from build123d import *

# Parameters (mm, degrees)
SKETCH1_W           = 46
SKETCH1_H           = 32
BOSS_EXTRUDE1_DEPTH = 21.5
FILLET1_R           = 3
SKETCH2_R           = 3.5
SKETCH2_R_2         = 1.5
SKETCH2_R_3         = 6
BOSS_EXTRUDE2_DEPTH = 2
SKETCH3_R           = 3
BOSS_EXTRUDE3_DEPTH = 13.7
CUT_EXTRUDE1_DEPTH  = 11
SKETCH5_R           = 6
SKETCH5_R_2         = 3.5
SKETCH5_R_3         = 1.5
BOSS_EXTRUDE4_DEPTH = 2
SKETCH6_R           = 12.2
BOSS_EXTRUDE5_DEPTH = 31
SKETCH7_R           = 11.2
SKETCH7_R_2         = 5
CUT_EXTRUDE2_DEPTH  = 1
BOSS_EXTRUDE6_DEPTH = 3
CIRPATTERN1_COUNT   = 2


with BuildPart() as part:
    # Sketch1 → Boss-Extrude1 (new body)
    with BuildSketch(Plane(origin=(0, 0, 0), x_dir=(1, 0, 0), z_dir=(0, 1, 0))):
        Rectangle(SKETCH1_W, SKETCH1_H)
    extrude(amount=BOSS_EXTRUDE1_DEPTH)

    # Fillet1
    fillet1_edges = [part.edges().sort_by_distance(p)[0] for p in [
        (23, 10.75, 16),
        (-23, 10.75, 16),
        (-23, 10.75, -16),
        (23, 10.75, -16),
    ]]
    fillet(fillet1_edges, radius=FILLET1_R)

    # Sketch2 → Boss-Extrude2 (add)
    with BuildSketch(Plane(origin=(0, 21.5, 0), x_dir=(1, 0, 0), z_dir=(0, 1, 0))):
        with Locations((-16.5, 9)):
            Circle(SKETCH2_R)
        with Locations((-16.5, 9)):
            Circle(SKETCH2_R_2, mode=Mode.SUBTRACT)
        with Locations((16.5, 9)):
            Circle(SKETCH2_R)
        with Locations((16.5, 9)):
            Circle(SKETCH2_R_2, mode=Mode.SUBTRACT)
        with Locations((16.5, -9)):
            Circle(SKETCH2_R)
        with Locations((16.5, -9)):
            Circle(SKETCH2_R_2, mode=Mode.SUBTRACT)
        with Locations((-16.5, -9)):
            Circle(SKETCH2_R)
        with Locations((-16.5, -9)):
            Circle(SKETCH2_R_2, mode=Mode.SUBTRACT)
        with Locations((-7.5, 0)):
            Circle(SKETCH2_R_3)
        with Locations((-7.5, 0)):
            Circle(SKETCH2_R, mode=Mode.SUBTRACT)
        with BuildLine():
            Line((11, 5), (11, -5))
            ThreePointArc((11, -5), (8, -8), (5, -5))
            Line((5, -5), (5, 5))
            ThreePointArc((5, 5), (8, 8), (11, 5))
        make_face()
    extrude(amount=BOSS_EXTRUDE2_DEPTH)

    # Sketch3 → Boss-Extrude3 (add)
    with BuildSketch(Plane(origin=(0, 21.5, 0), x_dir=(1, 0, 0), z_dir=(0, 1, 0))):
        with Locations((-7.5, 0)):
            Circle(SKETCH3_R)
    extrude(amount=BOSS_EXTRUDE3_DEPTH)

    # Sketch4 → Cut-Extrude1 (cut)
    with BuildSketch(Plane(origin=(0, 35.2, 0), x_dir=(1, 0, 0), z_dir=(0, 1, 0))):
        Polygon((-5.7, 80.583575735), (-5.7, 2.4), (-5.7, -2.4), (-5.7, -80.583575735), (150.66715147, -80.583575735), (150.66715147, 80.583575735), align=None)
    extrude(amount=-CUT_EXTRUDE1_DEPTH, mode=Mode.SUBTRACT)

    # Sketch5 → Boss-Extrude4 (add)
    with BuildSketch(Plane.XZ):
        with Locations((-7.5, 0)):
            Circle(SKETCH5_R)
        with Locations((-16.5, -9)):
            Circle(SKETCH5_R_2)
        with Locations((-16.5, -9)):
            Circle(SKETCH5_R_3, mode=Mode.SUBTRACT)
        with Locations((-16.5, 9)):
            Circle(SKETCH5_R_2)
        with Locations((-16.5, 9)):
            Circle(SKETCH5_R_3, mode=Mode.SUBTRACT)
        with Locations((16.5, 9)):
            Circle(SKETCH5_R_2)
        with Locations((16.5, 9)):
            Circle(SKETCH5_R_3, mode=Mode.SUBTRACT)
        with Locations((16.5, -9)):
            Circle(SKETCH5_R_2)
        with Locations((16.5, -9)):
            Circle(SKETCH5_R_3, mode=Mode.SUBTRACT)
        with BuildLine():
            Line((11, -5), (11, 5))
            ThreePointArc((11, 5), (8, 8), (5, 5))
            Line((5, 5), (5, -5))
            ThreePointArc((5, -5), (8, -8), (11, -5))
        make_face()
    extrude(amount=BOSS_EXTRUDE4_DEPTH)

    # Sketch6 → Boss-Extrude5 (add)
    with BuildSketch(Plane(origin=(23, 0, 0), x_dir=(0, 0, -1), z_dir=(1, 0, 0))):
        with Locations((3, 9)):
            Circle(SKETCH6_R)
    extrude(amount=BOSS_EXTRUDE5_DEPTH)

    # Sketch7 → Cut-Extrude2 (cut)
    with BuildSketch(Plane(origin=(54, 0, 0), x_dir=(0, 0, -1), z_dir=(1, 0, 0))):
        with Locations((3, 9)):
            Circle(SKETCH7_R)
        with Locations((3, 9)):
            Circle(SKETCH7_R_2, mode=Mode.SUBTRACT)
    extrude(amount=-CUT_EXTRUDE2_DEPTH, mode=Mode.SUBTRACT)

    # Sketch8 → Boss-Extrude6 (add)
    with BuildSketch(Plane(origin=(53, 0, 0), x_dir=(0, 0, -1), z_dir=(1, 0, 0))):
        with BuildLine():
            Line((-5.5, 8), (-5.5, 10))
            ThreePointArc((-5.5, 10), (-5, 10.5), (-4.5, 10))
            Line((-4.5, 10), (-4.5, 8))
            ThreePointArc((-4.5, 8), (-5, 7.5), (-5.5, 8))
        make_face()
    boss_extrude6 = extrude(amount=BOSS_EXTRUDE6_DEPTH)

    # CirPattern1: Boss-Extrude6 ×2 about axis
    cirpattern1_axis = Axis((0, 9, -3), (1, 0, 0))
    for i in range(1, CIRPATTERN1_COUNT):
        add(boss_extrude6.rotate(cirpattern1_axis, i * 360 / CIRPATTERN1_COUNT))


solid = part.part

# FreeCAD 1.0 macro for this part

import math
import FreeCAD as App
import Part
import Sketcher

V = App.Vector
Q = App.Units.Quantity


def edges_at(feature, points):
    """Names of the edges that pass closest to the given points."""
    edges = feature.Shape.Edges
    near = lambda p: min(range(len(edges)), key=lambda i: edges[i].distToShape(Part.Vertex(*p))[0])
    return sorted({f"Edge{near(p) + 1}" for p in points})

doc = App.newDocument("Part")
params = doc.addObject("Spreadsheet::Sheet", "Params")
for row, (alias, value) in enumerate([
    ("sketch1_width", "46 mm"),
    ("sketch1_height", "32 mm"),
    ("pad1_length", "21.5 mm"),
    ("fillet_radius", "3 mm"),
    ("sketch2_diameter", "7 mm"),
    ("sketch2_diameter2", "3 mm"),
    ("sketch2_diameter3", "12 mm"),
    ("sketch2_radius", "3 mm"),
    ("sketch2_height", "10 mm"),
    ("pad2_length", "2 mm"),
    ("sketch3_diameter", "6 mm"),
    ("pad3_length", "13.7 mm"),
    ("pocket1_length", "11 mm"),
    ("sketch5_diameter", "12 mm"),
    ("sketch5_diameter2", "7 mm"),
    ("sketch5_diameter3", "3 mm"),
    ("sketch5_radius", "3 mm"),
    ("sketch5_height", "10 mm"),
    ("pad4_length", "2 mm"),
    ("sketch6_diameter", "24.4 mm"),
    ("pad5_length", "31 mm"),
    ("sketch7_diameter", "10 mm"),
    ("sketch7_diameter2", "22.4 mm"),
    ("pocket2_length", "1 mm"),
    ("sketch8_radius", "0.5 mm"),
    ("sketch8_width", "2 mm"),
    ("pad6_length", "3 mm"),
], start=1):
    params.set(f"A{row}", alias)
    params.set(f"B{row}", "=" + value)
    params.setAlias(f"B{row}", alias)

body = doc.addObject("PartDesign::Body", "Body")

# Sketch on XZ plane
sketch1 = doc.addObject("Sketcher::SketchObject", "Sketch")
body.addObject(sketch1)
sketch1.AttachmentSupport = (doc.XZ_Plane, [""])
sketch1.MapMode = "FlatFace"
sketch1.addGeometry([
    Part.LineSegment(V(-23, -16, 0), V(-23, 16, 0)),
    Part.LineSegment(V(-23, 16, 0), V(23, 16, 0)),
    Part.LineSegment(V(23, 16, 0), V(23, -16, 0)),
    Part.LineSegment(V(23, -16, 0), V(-23, -16, 0)),
], False)
sketch1.addConstraint([
    Sketcher.Constraint("Coincident", 0, 2, 1, 1),
    Sketcher.Constraint("Coincident", 1, 2, 2, 1),
    Sketcher.Constraint("Coincident", 2, 2, 3, 1),
    Sketcher.Constraint("Coincident", 3, 2, 0, 1),
    Sketcher.Constraint("Vertical", 0),
    Sketcher.Constraint("Horizontal", 1),
    Sketcher.Constraint("Vertical", 2),
    Sketcher.Constraint("Horizontal", 3),
    Sketcher.Constraint("Symmetric", 0, 2, 2, 2, -1, 1),
    Sketcher.Constraint("DistanceX", 1, 1, 1, 2, Q("46 mm")),
    Sketcher.Constraint("DistanceY", 0, 1, 0, 2, Q("32 mm")),
])
sketch1.setExpression("Constraints[9]", "Params.sketch1_width")
sketch1.setExpression("Constraints[10]", "Params.sketch1_height")
pad1 = doc.addObject("PartDesign::Pad", "Pad")
body.addObject(pad1)
pad1.Profile = sketch1
pad1.setExpression("Length", "Params.pad1_length")
pad1.Reversed = True
doc.recompute()

fillet = doc.addObject("PartDesign::Fillet", "Fillet")
body.addObject(fillet)
fillet.Base = (pad1, edges_at(pad1, [
    (23, 10.75, 16),
    (-23, 10.75, 16),
    (-23, 10.75, -16),
    (23, 10.75, -16),
]))
fillet.setExpression("Radius", "Params.fillet_radius")

# Sketch on XZ plane
sketch2 = doc.addObject("Sketcher::SketchObject", "Sketch001")
body.addObject(sketch2)
sketch2.AttachmentSupport = (doc.XZ_Plane, [""])
sketch2.MapMode = "FlatFace"
sketch2.AttachmentOffset = App.Placement(V(0, 0, -21.5), App.Rotation())
sketch2.addGeometry([
    Part.Circle(V(-16.5, -9, 0), V(0, 0, 1), 3.5),  # 0
    Part.Circle(V(-16.5, -9, 0), V(0, 0, 1), 1.5),  # 1
    Part.Circle(V(16.5, -9, 0), V(0, 0, 1), 3.5),  # 2
    Part.Circle(V(16.5, -9, 0), V(0, 0, 1), 1.5),  # 3
    Part.Circle(V(16.5, 9, 0), V(0, 0, 1), 3.5),  # 4
    Part.Circle(V(16.5, 9, 0), V(0, 0, 1), 1.5),  # 5
    Part.Circle(V(-16.5, 9, 0), V(0, 0, 1), 3.5),  # 6
    Part.Circle(V(-16.5, 9, 0), V(0, 0, 1), 1.5),  # 7
    Part.Circle(V(-7.5, 0, 0), V(0, 0, 1), 6),  # 8
    Part.Circle(V(-7.5, 0, 0), V(0, 0, 1), 3.5),  # 9
    Part.LineSegment(V(11, 5, 0), V(11, -5, 0)),  # 10
    Part.ArcOfCircle(Part.Circle(V(8, -5, 0), V(0, 0, 1), 3), math.radians(180), math.radians(360)),  # 11
    Part.LineSegment(V(5, -5, 0), V(5, 5, 0)),  # 12
    Part.ArcOfCircle(Part.Circle(V(8, 5, 0), V(0, 0, 1), 3), math.radians(0), math.radians(180)),  # 13
], False)
sketch2.addConstraint([
    Sketcher.Constraint("Tangent", 10, 2, 11, 2),
    Sketcher.Constraint("Tangent", 11, 1, 12, 1),
    Sketcher.Constraint("Tangent", 12, 2, 13, 2),
    Sketcher.Constraint("Tangent", 13, 1, 10, 1),
    Sketcher.Constraint("Vertical", 10),
    Sketcher.Constraint("Vertical", 12),
    Sketcher.Constraint("Coincident", 1, 3, 0, 3),
    Sketcher.Constraint("Coincident", 3, 3, 2, 3),
    Sketcher.Constraint("Coincident", 5, 3, 4, 3),
    Sketcher.Constraint("Coincident", 7, 3, 6, 3),
    Sketcher.Constraint("Coincident", 9, 3, 8, 3),
    Sketcher.Constraint("Equal", 0, 2),
    Sketcher.Constraint("Equal", 1, 3),
    Sketcher.Constraint("Equal", 2, 4),
    Sketcher.Constraint("Equal", 3, 5),
    Sketcher.Constraint("Equal", 4, 6),
    Sketcher.Constraint("Equal", 5, 7),
    Sketcher.Constraint("Equal", 6, 9),
    Sketcher.Constraint("Symmetric", 0, 3, 4, 3, -1, 1),
    Sketcher.Constraint("Symmetric", 2, 3, 6, 3, -1, 1),
    Sketcher.Constraint("Symmetric", 0, 3, 2, 3, -2),
    Sketcher.Constraint("PointOnObject", 8, 3, -1),
    Sketcher.Constraint("Diameter", 0, Q("7 mm")),
    Sketcher.Constraint("Diameter", 1, Q("3 mm")),
    Sketcher.Constraint("Diameter", 8, Q("12 mm")),
    Sketcher.Constraint("Radius", 11, Q("3 mm")),
    Sketcher.Constraint("DistanceY", 10, 2, 10, 1, Q("10 mm")),
    Sketcher.Constraint("DistanceY", 0, 3, -1, 1, Q("9 mm")),
    Sketcher.Constraint("DistanceX", -1, 1, 11, 3, Q("8 mm")),
    Sketcher.Constraint("DistanceY", 11, 3, -1, 1, Q("5 mm")),
    Sketcher.Constraint("DistanceX", 0, 3, 2, 3, Q("33 mm")),
    Sketcher.Constraint("DistanceX", 0, 3, 8, 3, Q("9 mm")),
])
sketch2.setExpression("Constraints[22]", "Params.sketch2_diameter")
sketch2.setExpression("Constraints[23]", "Params.sketch2_diameter2")
sketch2.setExpression("Constraints[24]", "Params.sketch2_diameter3")
sketch2.setExpression("Constraints[25]", "Params.sketch2_radius")
sketch2.setExpression("Constraints[26]", "Params.sketch2_height")
pad2 = doc.addObject("PartDesign::Pad", "Pad001")
body.addObject(pad2)
pad2.Profile = sketch2
pad2.setExpression("Length", "Params.pad2_length")
pad2.Reversed = True

# Sketch on XZ plane
sketch3 = doc.addObject("Sketcher::SketchObject", "Sketch002")
body.addObject(sketch3)
sketch3.AttachmentSupport = (doc.XZ_Plane, [""])
sketch3.MapMode = "FlatFace"
sketch3.AttachmentOffset = App.Placement(V(0, 0, -21.5), App.Rotation())
sketch3.addGeometry(Part.Circle(V(-7.5, 0, 0), V(0, 0, 1), 3), False)
sketch3.addConstraint([
    Sketcher.Constraint("PointOnObject", 0, 3, -1),
    Sketcher.Constraint("Diameter", 0, Q("6 mm")),
    Sketcher.Constraint("DistanceX", 0, 3, -1, 1, Q("7.5 mm")),
])
sketch3.setExpression("Constraints[1]", "Params.sketch3_diameter")
pad3 = doc.addObject("PartDesign::Pad", "Pad002")
body.addObject(pad3)
pad3.Profile = sketch3
pad3.setExpression("Length", "Params.pad3_length")
pad3.Reversed = True

# Sketch on XZ plane
sketch4 = doc.addObject("Sketcher::SketchObject", "Sketch003")
body.addObject(sketch4)
sketch4.AttachmentSupport = (doc.XZ_Plane, [""])
sketch4.MapMode = "FlatFace"
sketch4.AttachmentOffset = App.Placement(V(0, 0, -35.2), App.Rotation())
sketch4.addGeometry([
    Part.LineSegment(V(-5.7, -80.583576, 0), V(-5.7, 80.583576, 0)),
    Part.LineSegment(V(-5.7, 80.583576, 0), V(150.667151, 80.583576, 0)),
    Part.LineSegment(V(150.667151, 80.583576, 0), V(150.667151, -80.583576, 0)),
    Part.LineSegment(V(150.667151, -80.583576, 0), V(-5.7, -80.583576, 0)),
], False)
sketch4.addConstraint([
    Sketcher.Constraint("Coincident", 0, 2, 1, 1),
    Sketcher.Constraint("Coincident", 1, 2, 2, 1),
    Sketcher.Constraint("Coincident", 2, 2, 3, 1),
    Sketcher.Constraint("Coincident", 3, 2, 0, 1),
    Sketcher.Constraint("Vertical", 0),
    Sketcher.Constraint("Horizontal", 1),
    Sketcher.Constraint("Vertical", 2),
    Sketcher.Constraint("Horizontal", 3),
    Sketcher.Constraint("DistanceX", 0, 2, -1, 1, Q("5.7 mm")),
    Sketcher.Constraint("DistanceX", 1, 1, 1, 2, Q("156.367151 mm")),
    Sketcher.Constraint("DistanceY", 0, 1, 0, 2, Q("161.167151 mm")),
    Sketcher.Constraint("DistanceY", -1, 1, 0, 2, Q("80.583576 mm")),
])
pocket1 = doc.addObject("PartDesign::Pocket", "Pocket")
body.addObject(pocket1)
pocket1.Profile = sketch4
pocket1.setExpression("Length", "Params.pocket1_length")
pocket1.Reversed = True

# Sketch on XZ plane
sketch5 = doc.addObject("Sketcher::SketchObject", "Sketch004")
body.addObject(sketch5)
sketch5.AttachmentSupport = (doc.XZ_Plane, [""])
sketch5.MapMode = "FlatFace"
sketch5.addGeometry([
    Part.Circle(V(-7.5, 0, 0), V(0, 0, 1), 6),  # 0
    Part.Circle(V(-16.5, -9, 0), V(0, 0, 1), 3.5),  # 1
    Part.Circle(V(-16.5, -9, 0), V(0, 0, 1), 1.5),  # 2
    Part.Circle(V(-16.5, 9, 0), V(0, 0, 1), 3.5),  # 3
    Part.Circle(V(-16.5, 9, 0), V(0, 0, 1), 1.5),  # 4
    Part.Circle(V(16.5, 9, 0), V(0, 0, 1), 3.5),  # 5
    Part.Circle(V(16.5, 9, 0), V(0, 0, 1), 1.5),  # 6
    Part.Circle(V(16.5, -9, 0), V(0, 0, 1), 3.5),  # 7
    Part.Circle(V(16.5, -9, 0), V(0, 0, 1), 1.5),  # 8
    Part.LineSegment(V(11, -5, 0), V(11, 5, 0)),  # 9
    Part.ArcOfCircle(Part.Circle(V(8, 5, 0), V(0, 0, 1), 3), math.radians(0), math.radians(180)),  # 10
    Part.LineSegment(V(5, 5, 0), V(5, -5, 0)),  # 11
    Part.ArcOfCircle(Part.Circle(V(8, -5, 0), V(0, 0, 1), 3), math.radians(180), math.radians(360)),  # 12
], False)
sketch5.addConstraint([
    Sketcher.Constraint("Tangent", 9, 2, 10, 1),
    Sketcher.Constraint("Tangent", 10, 2, 11, 1),
    Sketcher.Constraint("Tangent", 11, 2, 12, 1),
    Sketcher.Constraint("Tangent", 12, 2, 9, 1),
    Sketcher.Constraint("Vertical", 9),
    Sketcher.Constraint("Vertical", 11),
    Sketcher.Constraint("Coincident", 2, 3, 1, 3),
    Sketcher.Constraint("Coincident", 4, 3, 3, 3),
    Sketcher.Constraint("Coincident", 6, 3, 5, 3),
    Sketcher.Constraint("Coincident", 8, 3, 7, 3),
    Sketcher.Constraint("Equal", 1, 3),
    Sketcher.Constraint("Equal", 2, 4),
    Sketcher.Constraint("Equal", 3, 5),
    Sketcher.Constraint("Equal", 4, 6),
    Sketcher.Constraint("Equal", 5, 7),
    Sketcher.Constraint("Equal", 6, 8),
    Sketcher.Constraint("Symmetric", 1, 3, 5, 3, -1, 1),
    Sketcher.Constraint("Symmetric", 3, 3, 7, 3, -1, 1),
    Sketcher.Constraint("Symmetric", 3, 3, 5, 3, -2),
    Sketcher.Constraint("PointOnObject", 0, 3, -1),
    Sketcher.Constraint("Diameter", 0, Q("12 mm")),
    Sketcher.Constraint("Diameter", 1, Q("7 mm")),
    Sketcher.Constraint("Diameter", 2, Q("3 mm")),
    Sketcher.Constraint("Radius", 10, Q("3 mm")),
    Sketcher.Constraint("DistanceY", 9, 1, 9, 2, Q("10 mm")),
    Sketcher.Constraint("DistanceY", 1, 3, -1, 1, Q("9 mm")),
    Sketcher.Constraint("DistanceX", -1, 1, 10, 3, Q("8 mm")),
    Sketcher.Constraint("DistanceY", -1, 1, 10, 3, Q("5 mm")),
    Sketcher.Constraint("DistanceX", 1, 3, 0, 3, Q("9 mm")),
    Sketcher.Constraint("DistanceX", 0, 3, 5, 3, Q("24 mm")),
])
sketch5.setExpression("Constraints[20]", "Params.sketch5_diameter")
sketch5.setExpression("Constraints[21]", "Params.sketch5_diameter2")
sketch5.setExpression("Constraints[22]", "Params.sketch5_diameter3")
sketch5.setExpression("Constraints[23]", "Params.sketch5_radius")
sketch5.setExpression("Constraints[24]", "Params.sketch5_height")
pad4 = doc.addObject("PartDesign::Pad", "Pad003")
body.addObject(pad4)
pad4.Profile = sketch5
pad4.setExpression("Length", "Params.pad4_length")

# Sketch on YZ plane
sketch6 = doc.addObject("Sketcher::SketchObject", "Sketch005")
body.addObject(sketch6)
sketch6.AttachmentSupport = (doc.YZ_Plane, [""])
sketch6.MapMode = "FlatFace"
sketch6.AttachmentOffset = App.Placement(V(0, 0, 23), App.Rotation())
sketch6.addGeometry(Part.Circle(V(9, -3, 0), V(0, 0, 1), 12.2), False)
sketch6.addConstraint([
    Sketcher.Constraint("Diameter", 0, Q("24.4 mm")),
    Sketcher.Constraint("DistanceX", -1, 1, 0, 3, Q("9 mm")),
    Sketcher.Constraint("DistanceY", 0, 3, -1, 1, Q("3 mm")),
])
sketch6.setExpression("Constraints[0]", "Params.sketch6_diameter")
pad5 = doc.addObject("PartDesign::Pad", "Pad004")
body.addObject(pad5)
pad5.Profile = sketch6
pad5.setExpression("Length", "Params.pad5_length")

# Sketch on YZ plane
sketch7 = doc.addObject("Sketcher::SketchObject", "Sketch006")
body.addObject(sketch7)
sketch7.AttachmentSupport = (doc.YZ_Plane, [""])
sketch7.MapMode = "FlatFace"
sketch7.AttachmentOffset = App.Placement(V(0, 0, 54), App.Rotation())
sketch7.addGeometry([
    Part.Circle(V(9, -3, 0), V(0, 0, 1), 11.2),
    Part.Circle(V(9, -3, 0), V(0, 0, 1), 5),
], False)
sketch7.addConstraint([
    Sketcher.Constraint("Coincident", 1, 3, 0, 3),
    Sketcher.Constraint("Diameter", 1, Q("10 mm")),
    Sketcher.Constraint("Diameter", 0, Q("22.4 mm")),
    Sketcher.Constraint("DistanceX", -1, 1, 0, 3, Q("9 mm")),
    Sketcher.Constraint("DistanceY", 0, 3, -1, 1, Q("3 mm")),
])
sketch7.setExpression("Constraints[1]", "Params.sketch7_diameter")
sketch7.setExpression("Constraints[2]", "Params.sketch7_diameter2")
pocket2 = doc.addObject("PartDesign::Pocket", "Pocket001")
body.addObject(pocket2)
pocket2.Profile = sketch7
pocket2.setExpression("Length", "Params.pocket2_length")

# Sketch on YZ plane
sketch8 = doc.addObject("Sketcher::SketchObject", "Sketch007")
body.addObject(sketch8)
sketch8.AttachmentSupport = (doc.YZ_Plane, [""])
sketch8.MapMode = "FlatFace"
sketch8.AttachmentOffset = App.Placement(V(0, 0, 53), App.Rotation())
sketch8.addGeometry([
    Part.LineSegment(V(10, 5.5, 0), V(8, 5.5, 0)),
    Part.ArcOfCircle(Part.Circle(V(8, 5, 0), V(0, 0, 1), 0.5), math.radians(90), math.radians(270)),
    Part.LineSegment(V(8, 4.5, 0), V(10, 4.5, 0)),
    Part.ArcOfCircle(Part.Circle(V(10, 5, 0), V(0, 0, 1), 0.5), math.radians(-90), math.radians(90)),
], False)
sketch8.addConstraint([
    Sketcher.Constraint("Tangent", 0, 2, 1, 1),
    Sketcher.Constraint("Tangent", 1, 2, 2, 1),
    Sketcher.Constraint("Tangent", 2, 2, 3, 1),
    Sketcher.Constraint("Tangent", 3, 2, 0, 1),
    Sketcher.Constraint("Horizontal", 0),
    Sketcher.Constraint("Horizontal", 2),
    Sketcher.Constraint("Radius", 1, Q("0.5 mm")),
    Sketcher.Constraint("DistanceX", 0, 2, 0, 1, Q("2 mm")),
    Sketcher.Constraint("DistanceX", -1, 1, 1, 3, Q("8 mm")),
    Sketcher.Constraint("DistanceY", -1, 1, 1, 3, Q("5 mm")),
])
sketch8.setExpression("Constraints[6]", "Params.sketch8_radius")
sketch8.setExpression("Constraints[7]", "Params.sketch8_width")
pad6 = doc.addObject("PartDesign::Pad", "Pad005")
body.addObject(pad6)
pad6.Profile = sketch8
pad6.setExpression("Length", "Params.pad6_length")
doc.recompute()

datumline = doc.addObject("PartDesign::Line", "DatumLine")
body.addObject(datumline)
datumline.Placement = App.Placement(V(0, 9, -3), App.Rotation(V(0, 0, 1), V(1, 0, 0)))
polarpattern = doc.addObject("PartDesign::PolarPattern", "PolarPattern")
body.addObject(polarpattern)
polarpattern.Originals = [pad6]
polarpattern.Axis = (datumline, [""])
polarpattern.Angle = 360
polarpattern.Occurrences = 2
body.Tip = polarpattern

doc.recompute()
